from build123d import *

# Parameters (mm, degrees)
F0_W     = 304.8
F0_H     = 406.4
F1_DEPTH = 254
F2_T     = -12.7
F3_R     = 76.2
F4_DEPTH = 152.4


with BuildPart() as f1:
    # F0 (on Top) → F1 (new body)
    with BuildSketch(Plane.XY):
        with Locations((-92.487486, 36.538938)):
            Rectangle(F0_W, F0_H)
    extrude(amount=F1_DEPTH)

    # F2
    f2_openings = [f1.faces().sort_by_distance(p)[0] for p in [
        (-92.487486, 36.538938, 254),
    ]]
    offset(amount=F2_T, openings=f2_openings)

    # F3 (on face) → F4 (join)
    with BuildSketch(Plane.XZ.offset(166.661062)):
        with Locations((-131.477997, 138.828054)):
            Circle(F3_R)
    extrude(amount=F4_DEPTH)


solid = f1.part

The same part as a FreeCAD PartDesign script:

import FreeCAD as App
import Part
import Sketcher

V = App.Vector
Q = App.Units.Quantity


def faces_at(feature, points):
    """Names of the faces that lie closest to the given points."""
    faces = feature.Shape.Faces
    near = lambda p: min(range(len(faces)), key=lambda i: faces[i].distToShape(Part.Vertex(*p))[0])
    return sorted({f"Face{near(p) + 1}" for p in points})

doc = App.newDocument("Part")
params = doc.addObject("Spreadsheet::Sheet", "Params")
for row, (alias, value) in enumerate([
    ("sketch1_width", "12 in"),
    ("sketch1_height", "16 in"),
    ("pad1_length", "10 in"),
    ("thickness_wall", "0.5 in"),
    ("sketch2_diameter", "6 in"),
    ("pad2_length", "6 in"),
], start=1):
    params.set(f"A{row}", alias)
    params.set(f"B{row}", "=" + value)
    params.setAlias(f"B{row}", alias)

body = doc.addObject("PartDesign::Body", "Body")

sketch1 = doc.addObject("Sketcher::SketchObject", "Sketch")
body.addObject(sketch1)
sketch1.AttachmentSupport = (doc.XY_Plane, [""])
sketch1.MapMode = "FlatFace"
sketch1.addGeometry(Part.LineSegment(V(-245, 240, 0), V(-245, -167, 0)), False)
sketch1.addGeometry(Part.LineSegment(V(-245, -167, 0), V(60, -167, 0)), False)
sketch1.addGeometry(Part.LineSegment(V(60, -167, 0), V(60, 240, 0)), False)
sketch1.addGeometry(Part.LineSegment(V(60, 240, 0), V(-245, 240, 0)), False)
sketch1.addConstraint(Sketcher.Constraint("Coincident", 0, 2, 1, 1))
sketch1.addConstraint(Sketcher.Constraint("Coincident", 1, 2, 2, 1))
sketch1.addConstraint(Sketcher.Constraint("Coincident", 2, 2, 3, 1))
sketch1.addConstraint(Sketcher.Constraint("Coincident", 3, 2, 0, 1))
sketch1.addConstraint(Sketcher.Constraint("Vertical", 0))
sketch1.addConstraint(Sketcher.Constraint("Horizontal", 1))
sketch1.addConstraint(Sketcher.Constraint("Vertical", 2))
sketch1.addConstraint(Sketcher.Constraint("Horizontal", 3))
sketch1.addConstraint(Sketcher.Constraint("DistanceX", 1, 1, 1, 2, Q("12 in")))
sketch1.addConstraint(Sketcher.Constraint("DistanceY", 0, 2, 0, 1, Q("16 in")))
sketch1.addConstraint(Sketcher.Constraint("DistanceY", 0, 2, -1, 1, Q("166.661062 mm")))
sketch1.addConstraint(Sketcher.Constraint("DistanceX", 0, 2, -1, 1, Q("244.887486 mm")))
sketch1.setExpression("Constraints[8]", "Params.sketch1_width")
sketch1.setExpression("Constraints[9]", "Params.sketch1_height")
pad1 = doc.addObject("PartDesign::Pad", "Pad")
body.addObject(pad1)
pad1.Profile = sketch1
pad1.setExpression("Length", "Params.pad1_length")
doc.recompute()

thickness = doc.addObject("PartDesign::Thickness", "Thickness")
body.addObject(thickness)
thickness.Base = (pad1, faces_at(pad1, [(-92.487, 36.539, 254)]))
thickness.setExpression("Value", "Params.thickness_wall")
thickness.Reversed = True
thickness.Join = "Arc"

sketch2 = doc.addObject("Sketcher::SketchObject", "Sketch001")
body.addObject(sketch2)
sketch2.AttachmentSupport = (doc.XZ_Plane, [""])
sketch2.MapMode = "FlatFace"
sketch2.AttachmentOffset = App.Placement(V(0, 0, 166.661062), App.Rotation())
sketch2.addGeometry(Part.Circle(V(-131, 139, 0), V(0, 0, 1), 76), False)
sketch2.addConstraint(Sketcher.Constraint("Diameter", 0, Q("6 in")))
sketch2.addConstraint(Sketcher.Constraint("DistanceX", 0, 3, -1, 1, Q("131.477997 mm")))
sketch2.addConstraint(Sketcher.Constraint("DistanceY", -1, 1, 0, 3, Q("138.828054 mm")))
sketch2.setExpression("Constraints[0]", "Params.sketch2_diameter")
pad2 = doc.addObject("PartDesign::Pad", "Pad001")
body.addObject(pad2)
pad2.Profile = sketch2
pad2.setExpression("Length", "Params.pad2_length")

doc.recompute()
